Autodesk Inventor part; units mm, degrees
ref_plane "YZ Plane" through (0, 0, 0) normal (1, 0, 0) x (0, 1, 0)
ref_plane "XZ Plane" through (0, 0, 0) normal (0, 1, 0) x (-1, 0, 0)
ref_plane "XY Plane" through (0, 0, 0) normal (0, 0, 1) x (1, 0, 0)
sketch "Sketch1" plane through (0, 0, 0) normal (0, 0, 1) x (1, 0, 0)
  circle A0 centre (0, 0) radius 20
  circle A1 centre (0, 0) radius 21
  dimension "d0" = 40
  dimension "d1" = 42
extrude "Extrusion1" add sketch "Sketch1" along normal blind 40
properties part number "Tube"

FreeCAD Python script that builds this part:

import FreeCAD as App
import Part
import Sketcher
from FreeCAD import Vector

doc = App.newDocument("Part")
body = doc.addObject("PartDesign::Body", "Body")

sketch1 = body.newObject("Sketcher::SketchObject", "Sketch")
sketch1.AttachmentSupport = (doc.getObject("XY_Plane"), [""])
sketch1.MapMode = "FlatFace"
sketch1.addGeometry(Part.Circle(Vector(0, 0, 0), Vector(0, 0, 1), 21), False)
sketch1.addGeometry(Part.Circle(Vector(0, 0, 0), Vector(0, 0, 1), 20), False)
sketch1.addConstraint(Sketcher.Constraint("Coincident", 0, 3, -1, 1))
sketch1.addConstraint(Sketcher.Constraint("Coincident", 1, 3, -1, 1))
sketch1.addConstraint(Sketcher.Constraint("Diameter", 0, 42.0))
sketch1.addConstraint(Sketcher.Constraint("Diameter", 1, 40.0))
pad1 = body.newObject("PartDesign::Pad", "Pad")
pad1.Profile = sketch1
pad1.Length = 40

doc.recompute()
